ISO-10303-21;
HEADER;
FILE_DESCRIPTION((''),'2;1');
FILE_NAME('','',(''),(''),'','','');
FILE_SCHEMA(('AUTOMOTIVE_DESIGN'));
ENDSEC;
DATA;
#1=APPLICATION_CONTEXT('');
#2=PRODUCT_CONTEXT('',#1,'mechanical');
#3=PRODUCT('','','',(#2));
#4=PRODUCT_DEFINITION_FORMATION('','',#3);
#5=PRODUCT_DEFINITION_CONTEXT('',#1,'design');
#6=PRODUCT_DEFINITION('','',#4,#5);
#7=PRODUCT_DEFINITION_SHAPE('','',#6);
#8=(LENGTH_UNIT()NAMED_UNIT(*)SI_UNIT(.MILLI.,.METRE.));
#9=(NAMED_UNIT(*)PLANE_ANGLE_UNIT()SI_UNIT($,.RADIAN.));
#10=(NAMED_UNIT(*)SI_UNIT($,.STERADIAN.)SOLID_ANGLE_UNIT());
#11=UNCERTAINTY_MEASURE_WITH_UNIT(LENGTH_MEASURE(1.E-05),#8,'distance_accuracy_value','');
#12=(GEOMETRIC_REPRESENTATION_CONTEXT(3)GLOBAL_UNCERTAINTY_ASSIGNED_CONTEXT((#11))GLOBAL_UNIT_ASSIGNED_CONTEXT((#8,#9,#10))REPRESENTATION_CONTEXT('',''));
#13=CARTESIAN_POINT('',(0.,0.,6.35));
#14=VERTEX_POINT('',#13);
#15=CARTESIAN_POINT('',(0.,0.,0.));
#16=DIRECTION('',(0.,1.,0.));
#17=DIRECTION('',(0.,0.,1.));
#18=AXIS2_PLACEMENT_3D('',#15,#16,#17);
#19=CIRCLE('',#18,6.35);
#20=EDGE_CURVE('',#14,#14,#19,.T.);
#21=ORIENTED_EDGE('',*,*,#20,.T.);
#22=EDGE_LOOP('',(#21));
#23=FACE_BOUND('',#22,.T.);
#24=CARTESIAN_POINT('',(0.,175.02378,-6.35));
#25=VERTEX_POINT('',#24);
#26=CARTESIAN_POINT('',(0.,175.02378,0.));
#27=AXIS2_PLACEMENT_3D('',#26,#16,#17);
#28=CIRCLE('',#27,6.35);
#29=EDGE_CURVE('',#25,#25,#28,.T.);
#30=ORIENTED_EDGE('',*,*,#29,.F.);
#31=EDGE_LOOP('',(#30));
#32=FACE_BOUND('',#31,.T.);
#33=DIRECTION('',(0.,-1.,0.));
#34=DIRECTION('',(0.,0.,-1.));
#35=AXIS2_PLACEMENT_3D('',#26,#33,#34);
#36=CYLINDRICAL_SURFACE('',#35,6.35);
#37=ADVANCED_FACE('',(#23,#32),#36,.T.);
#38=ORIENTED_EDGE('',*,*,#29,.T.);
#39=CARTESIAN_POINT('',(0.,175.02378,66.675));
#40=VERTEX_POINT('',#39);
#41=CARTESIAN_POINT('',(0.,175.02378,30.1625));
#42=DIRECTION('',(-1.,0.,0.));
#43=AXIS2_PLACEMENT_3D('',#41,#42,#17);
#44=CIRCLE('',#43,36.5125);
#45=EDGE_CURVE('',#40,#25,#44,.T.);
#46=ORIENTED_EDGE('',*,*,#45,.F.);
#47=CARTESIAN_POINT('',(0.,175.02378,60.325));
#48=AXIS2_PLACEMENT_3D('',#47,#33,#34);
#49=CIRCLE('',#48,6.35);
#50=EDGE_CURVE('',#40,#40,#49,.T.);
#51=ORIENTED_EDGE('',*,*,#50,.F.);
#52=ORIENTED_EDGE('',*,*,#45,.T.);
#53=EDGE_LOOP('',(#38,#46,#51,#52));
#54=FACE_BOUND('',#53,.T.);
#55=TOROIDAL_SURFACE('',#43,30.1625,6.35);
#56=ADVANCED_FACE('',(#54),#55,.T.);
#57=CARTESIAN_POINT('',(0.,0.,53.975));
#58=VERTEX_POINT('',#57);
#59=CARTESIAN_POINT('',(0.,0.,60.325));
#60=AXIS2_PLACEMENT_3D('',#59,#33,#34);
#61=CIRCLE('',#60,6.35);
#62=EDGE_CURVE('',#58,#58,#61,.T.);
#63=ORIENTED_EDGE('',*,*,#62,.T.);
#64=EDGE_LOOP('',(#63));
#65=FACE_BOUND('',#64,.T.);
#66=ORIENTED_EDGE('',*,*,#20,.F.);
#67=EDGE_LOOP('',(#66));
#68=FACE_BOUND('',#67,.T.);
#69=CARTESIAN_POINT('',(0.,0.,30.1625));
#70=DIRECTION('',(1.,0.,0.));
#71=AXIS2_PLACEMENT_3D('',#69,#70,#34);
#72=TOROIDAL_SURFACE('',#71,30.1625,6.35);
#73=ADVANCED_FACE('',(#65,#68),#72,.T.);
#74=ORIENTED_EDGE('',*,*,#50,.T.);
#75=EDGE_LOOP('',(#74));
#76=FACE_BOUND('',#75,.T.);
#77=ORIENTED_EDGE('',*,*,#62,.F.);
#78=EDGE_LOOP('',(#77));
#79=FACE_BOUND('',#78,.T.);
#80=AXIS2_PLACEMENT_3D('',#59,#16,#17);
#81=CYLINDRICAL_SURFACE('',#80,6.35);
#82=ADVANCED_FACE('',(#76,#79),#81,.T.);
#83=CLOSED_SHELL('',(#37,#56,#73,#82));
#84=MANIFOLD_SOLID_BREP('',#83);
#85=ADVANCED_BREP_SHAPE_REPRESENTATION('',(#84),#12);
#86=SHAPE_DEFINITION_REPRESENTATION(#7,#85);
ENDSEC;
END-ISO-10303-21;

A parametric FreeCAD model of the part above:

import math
import FreeCAD as App
import Part
import Sketcher
Q = App.Units.Quantity

doc = App.newDocument("Part")
body = doc.addObject("PartDesign::Body", "Body")

sketch1 = doc.addObject("Sketcher::SketchObject", "Sketch")
body.addObject(sketch1)
sketch1.AttachmentSupport = (doc.XZ_Plane, [""])
sketch1.MapMode = "FlatFace"
sketch1.addGeometry(Part.Circle(App.Vector(0, 0, 0), App.Vector(0, 0, 1), 6), False)
sketch1.addConstraint([
    Sketcher.Constraint("Coincident", 0, 3, -1, 1),
    Sketcher.Constraint("Diameter", 0, Q("0.5 in")),
])

sketch2 = doc.addObject("Sketcher::SketchObject", "Sketch001")
body.addObject(sketch2)
sketch2.AttachmentSupport = (doc.YZ_Plane, [""])
sketch2.MapMode = "FlatFace"
sketch2.addGeometry([
    Part.LineSegment(App.Vector(0, 0, 0), App.Vector(175, 0, 0)),
    Part.ArcOfCircle(Part.Circle(App.Vector(175, 30, 0), App.Vector(0, 0, 1), 30), math.radians(-90), math.radians(90)),
    Part.LineSegment(App.Vector(175, 60, 0), App.Vector(0, 60, 0)),
    Part.ArcOfCircle(Part.Circle(App.Vector(0, 30, 0), App.Vector(0, 0, 1), 30), math.radians(90), math.radians(270)),
], False)
sketch2.addConstraint([
    Sketcher.Constraint("Tangent", 0, 2, 1, 1),
    Sketcher.Constraint("Tangent", 1, 2, 2, 1),
    Sketcher.Constraint("Tangent", 2, 2, 3, 1),
    Sketcher.Constraint("Tangent", 3, 2, 0, 1),
    Sketcher.Constraint("Horizontal", 0),
    Sketcher.Constraint("Horizontal", 2),
    Sketcher.Constraint("Coincident", 3, 2, -1, 1),
    Sketcher.Constraint("Radius", 1, Q("1.1875 in")),
    Sketcher.Constraint("DistanceX", 0, 1, 0, 2, Q("6.8907 in")),
])
doc.recompute()

additivepipe = doc.addObject("PartDesign::AdditivePipe", "AdditivePipe")
body.addObject(additivepipe)
additivepipe.Profile = sketch1
additivepipe.Spine = (sketch2, ["Edge1", "Edge2", "Edge3", "Edge4"])

doc.recompute()
